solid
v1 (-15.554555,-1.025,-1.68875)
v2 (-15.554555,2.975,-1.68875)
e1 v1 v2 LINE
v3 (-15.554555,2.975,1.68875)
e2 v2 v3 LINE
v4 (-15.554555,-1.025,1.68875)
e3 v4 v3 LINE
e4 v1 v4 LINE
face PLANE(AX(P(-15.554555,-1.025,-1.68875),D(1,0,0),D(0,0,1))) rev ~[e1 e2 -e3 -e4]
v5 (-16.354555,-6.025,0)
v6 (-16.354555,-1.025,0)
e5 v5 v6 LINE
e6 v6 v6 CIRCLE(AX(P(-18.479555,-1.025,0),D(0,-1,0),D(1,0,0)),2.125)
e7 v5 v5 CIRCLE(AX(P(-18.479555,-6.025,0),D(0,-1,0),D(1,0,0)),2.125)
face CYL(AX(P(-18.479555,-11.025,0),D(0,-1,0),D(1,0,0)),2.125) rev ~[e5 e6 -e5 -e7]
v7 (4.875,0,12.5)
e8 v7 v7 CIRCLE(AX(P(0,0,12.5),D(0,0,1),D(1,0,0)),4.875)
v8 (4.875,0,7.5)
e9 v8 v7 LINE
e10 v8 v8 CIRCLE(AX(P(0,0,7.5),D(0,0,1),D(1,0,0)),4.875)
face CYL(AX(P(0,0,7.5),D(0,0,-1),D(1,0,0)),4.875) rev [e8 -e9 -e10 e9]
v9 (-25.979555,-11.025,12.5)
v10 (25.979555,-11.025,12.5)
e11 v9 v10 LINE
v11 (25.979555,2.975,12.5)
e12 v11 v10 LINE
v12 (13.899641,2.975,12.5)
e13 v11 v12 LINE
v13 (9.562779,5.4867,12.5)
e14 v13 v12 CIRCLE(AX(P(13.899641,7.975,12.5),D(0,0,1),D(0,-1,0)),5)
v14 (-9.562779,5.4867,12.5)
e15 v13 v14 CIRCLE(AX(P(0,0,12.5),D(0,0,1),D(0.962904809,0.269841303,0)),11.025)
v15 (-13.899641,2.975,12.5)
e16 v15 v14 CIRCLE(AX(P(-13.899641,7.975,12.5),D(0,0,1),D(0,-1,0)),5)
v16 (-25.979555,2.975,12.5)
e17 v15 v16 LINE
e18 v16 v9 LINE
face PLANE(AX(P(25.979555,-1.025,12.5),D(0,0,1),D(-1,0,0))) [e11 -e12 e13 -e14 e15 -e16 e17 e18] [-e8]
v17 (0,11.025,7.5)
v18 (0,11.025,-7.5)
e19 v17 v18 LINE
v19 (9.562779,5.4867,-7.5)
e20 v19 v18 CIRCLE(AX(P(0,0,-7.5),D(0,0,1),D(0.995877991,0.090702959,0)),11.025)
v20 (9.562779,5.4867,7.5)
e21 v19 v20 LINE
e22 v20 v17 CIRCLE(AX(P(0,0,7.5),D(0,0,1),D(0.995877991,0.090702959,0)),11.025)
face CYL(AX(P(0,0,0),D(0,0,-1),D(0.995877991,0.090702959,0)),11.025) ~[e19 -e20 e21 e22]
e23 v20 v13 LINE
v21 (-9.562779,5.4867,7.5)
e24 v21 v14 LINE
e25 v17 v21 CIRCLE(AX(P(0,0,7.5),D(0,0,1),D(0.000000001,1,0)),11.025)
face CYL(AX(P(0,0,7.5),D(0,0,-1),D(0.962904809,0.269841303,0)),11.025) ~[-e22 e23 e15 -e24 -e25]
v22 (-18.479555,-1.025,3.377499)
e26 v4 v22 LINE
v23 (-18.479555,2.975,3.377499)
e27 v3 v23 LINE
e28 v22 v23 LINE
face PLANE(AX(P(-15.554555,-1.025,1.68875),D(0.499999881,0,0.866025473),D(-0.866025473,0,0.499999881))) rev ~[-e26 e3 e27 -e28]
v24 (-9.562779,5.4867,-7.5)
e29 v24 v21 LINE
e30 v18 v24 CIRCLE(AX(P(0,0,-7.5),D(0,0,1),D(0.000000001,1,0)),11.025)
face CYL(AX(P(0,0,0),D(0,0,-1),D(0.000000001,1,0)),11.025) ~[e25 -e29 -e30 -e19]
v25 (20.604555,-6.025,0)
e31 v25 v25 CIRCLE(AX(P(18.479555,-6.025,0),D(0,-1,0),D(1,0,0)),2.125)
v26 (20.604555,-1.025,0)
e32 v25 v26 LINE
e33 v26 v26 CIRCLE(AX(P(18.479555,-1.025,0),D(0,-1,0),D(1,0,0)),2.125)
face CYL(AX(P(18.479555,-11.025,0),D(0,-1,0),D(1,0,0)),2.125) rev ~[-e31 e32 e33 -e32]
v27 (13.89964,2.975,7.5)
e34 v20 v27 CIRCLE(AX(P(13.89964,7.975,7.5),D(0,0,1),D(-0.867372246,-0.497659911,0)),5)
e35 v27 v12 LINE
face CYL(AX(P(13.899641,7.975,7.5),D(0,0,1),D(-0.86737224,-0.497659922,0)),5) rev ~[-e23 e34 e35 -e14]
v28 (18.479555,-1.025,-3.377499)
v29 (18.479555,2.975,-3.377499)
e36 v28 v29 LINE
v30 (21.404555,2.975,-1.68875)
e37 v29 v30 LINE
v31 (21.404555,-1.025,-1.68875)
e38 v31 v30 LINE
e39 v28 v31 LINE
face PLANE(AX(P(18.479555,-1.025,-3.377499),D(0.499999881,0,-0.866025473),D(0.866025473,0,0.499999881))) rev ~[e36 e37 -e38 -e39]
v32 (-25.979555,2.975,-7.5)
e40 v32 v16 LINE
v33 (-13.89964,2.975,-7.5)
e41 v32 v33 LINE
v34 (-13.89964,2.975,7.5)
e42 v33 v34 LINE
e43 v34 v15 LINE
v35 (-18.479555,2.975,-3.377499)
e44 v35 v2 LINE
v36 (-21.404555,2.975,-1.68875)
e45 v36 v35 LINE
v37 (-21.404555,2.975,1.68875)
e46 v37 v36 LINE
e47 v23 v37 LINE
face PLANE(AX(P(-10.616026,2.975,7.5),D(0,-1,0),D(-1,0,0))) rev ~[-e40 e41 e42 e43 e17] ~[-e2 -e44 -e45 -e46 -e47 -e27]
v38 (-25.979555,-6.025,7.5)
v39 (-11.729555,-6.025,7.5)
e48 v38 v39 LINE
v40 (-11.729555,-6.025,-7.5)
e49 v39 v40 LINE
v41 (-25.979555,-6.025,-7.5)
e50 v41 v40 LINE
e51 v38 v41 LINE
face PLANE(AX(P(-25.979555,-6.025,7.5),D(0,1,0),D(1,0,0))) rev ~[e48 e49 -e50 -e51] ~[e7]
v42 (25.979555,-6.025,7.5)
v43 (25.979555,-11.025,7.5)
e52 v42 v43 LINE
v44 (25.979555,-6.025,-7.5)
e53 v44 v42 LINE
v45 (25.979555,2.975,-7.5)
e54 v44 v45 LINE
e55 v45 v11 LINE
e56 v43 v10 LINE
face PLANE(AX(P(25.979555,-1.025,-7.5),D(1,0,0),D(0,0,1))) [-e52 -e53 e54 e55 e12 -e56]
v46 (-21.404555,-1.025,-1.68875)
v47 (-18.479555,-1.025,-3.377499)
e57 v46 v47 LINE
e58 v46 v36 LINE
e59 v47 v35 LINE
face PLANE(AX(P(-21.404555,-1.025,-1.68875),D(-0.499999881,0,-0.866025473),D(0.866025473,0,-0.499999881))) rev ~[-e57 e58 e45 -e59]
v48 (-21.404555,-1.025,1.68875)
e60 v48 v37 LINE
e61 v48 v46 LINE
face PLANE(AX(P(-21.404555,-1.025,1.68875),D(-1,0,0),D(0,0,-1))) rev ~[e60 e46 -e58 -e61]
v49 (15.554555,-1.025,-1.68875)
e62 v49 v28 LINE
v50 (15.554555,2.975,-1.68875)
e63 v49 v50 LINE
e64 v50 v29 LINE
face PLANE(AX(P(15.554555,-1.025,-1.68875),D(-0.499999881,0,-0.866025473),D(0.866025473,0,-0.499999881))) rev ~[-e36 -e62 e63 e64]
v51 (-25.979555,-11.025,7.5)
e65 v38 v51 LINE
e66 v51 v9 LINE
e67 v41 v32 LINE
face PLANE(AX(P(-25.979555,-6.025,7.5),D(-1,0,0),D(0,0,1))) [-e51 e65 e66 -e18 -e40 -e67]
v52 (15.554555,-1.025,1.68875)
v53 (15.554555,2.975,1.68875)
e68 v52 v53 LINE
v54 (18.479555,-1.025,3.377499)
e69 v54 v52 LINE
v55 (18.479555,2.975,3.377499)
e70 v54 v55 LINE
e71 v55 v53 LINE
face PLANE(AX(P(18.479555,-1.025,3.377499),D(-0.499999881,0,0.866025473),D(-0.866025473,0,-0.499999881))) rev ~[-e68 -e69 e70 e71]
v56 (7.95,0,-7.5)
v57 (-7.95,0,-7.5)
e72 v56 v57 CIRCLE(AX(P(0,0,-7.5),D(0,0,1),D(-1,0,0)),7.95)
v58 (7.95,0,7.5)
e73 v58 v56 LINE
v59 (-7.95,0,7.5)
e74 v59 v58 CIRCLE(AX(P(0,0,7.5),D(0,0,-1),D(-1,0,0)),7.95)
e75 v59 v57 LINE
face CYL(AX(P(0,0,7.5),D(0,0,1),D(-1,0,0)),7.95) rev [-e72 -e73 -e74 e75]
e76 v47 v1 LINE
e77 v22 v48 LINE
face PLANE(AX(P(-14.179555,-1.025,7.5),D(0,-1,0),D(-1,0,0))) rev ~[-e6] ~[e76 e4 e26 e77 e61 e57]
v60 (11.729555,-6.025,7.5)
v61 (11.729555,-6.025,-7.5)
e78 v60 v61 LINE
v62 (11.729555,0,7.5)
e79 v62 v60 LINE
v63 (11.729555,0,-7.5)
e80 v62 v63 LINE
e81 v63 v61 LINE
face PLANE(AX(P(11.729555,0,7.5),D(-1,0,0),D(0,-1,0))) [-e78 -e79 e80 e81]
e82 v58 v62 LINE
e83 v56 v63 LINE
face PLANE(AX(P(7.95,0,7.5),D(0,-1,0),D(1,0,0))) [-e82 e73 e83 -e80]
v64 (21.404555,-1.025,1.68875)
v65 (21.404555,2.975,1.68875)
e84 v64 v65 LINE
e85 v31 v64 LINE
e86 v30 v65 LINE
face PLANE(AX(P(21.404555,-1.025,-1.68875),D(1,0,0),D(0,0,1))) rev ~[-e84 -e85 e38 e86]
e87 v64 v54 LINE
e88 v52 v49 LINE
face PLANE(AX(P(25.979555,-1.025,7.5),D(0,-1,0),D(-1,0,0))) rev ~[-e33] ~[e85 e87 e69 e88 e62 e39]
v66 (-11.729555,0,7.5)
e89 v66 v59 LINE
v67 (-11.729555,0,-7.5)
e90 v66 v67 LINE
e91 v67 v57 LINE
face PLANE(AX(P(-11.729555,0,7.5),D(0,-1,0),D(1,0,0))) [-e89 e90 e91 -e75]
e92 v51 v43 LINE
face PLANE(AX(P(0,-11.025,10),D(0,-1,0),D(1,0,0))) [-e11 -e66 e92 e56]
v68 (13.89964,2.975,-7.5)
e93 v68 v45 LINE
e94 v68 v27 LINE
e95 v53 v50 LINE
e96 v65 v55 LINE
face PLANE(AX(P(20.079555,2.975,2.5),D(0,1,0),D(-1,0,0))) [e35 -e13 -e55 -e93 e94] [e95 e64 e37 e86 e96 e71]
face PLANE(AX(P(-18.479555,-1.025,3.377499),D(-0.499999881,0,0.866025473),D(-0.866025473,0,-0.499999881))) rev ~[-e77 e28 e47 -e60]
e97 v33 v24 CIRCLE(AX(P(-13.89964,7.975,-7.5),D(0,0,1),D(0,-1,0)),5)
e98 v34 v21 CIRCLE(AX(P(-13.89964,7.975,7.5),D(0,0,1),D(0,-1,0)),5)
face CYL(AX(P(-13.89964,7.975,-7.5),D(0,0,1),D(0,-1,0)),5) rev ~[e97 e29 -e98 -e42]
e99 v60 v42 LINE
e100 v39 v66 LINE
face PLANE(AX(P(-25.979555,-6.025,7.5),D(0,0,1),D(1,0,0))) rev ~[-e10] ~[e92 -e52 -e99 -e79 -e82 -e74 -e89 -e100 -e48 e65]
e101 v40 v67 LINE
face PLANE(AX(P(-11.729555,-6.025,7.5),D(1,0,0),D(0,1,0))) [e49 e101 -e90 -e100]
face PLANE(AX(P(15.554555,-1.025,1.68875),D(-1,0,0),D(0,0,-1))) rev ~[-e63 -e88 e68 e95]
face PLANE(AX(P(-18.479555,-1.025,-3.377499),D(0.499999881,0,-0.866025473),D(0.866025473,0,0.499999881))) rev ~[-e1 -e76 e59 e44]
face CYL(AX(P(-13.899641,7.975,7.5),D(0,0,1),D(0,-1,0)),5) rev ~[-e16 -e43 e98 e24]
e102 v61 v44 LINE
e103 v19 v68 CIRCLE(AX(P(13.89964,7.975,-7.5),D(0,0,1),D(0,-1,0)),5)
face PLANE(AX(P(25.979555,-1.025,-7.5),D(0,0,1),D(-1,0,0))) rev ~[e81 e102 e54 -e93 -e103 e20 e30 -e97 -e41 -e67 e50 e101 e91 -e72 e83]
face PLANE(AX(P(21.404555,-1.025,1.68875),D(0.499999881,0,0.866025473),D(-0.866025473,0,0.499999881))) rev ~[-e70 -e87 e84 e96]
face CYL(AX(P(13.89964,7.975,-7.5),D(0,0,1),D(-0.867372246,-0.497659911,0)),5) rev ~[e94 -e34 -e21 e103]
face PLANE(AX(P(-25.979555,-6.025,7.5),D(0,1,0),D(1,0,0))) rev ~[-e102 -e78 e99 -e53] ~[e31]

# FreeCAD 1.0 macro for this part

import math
import FreeCAD as App
import Part
import Sketcher

V = App.Vector
Q = App.Units.Quantity


def edges_at(feature, points):
    """Names of the edges that pass closest to the given points."""
    edges = feature.Shape.Edges
    near = lambda p: min(range(len(edges)), key=lambda i: edges[i].distToShape(Part.Vertex(*p))[0])
    return sorted({f"Edge{near(p) + 1}" for p in points})


def add_polygon(sketch, points):
    """Adds a closed chain of lines whose ends are joined by coincident constraints."""
    first, n = sketch.GeometryCount, len(points)
    for a, b in zip(points, points[1:] + points[:1]):
        sketch.addGeometry(Part.LineSegment(App.Vector(*a, 0), App.Vector(*b, 0)), False)
    for i in range(n):
        sketch.addConstraint(Sketcher.Constraint("Coincident", first + i, 2, first + (i + 1) % n, 1))

doc = App.newDocument("Part")
params = doc.addObject("Spreadsheet::Sheet", "Params")
for row, (alias, value) in enumerate([
    ("sketch1_diameter", "9.5 mm"),
    ("sketch1_width", "15 mm"),
    ("sketch1_height", "5 mm"),
    ("pad1_length", "15 mm"),
    ("sketch2_diameter", "4.25 mm"),
    ("pocket1_length", "25 mm"),
    ("sketch4_height", "4 mm"),
    ("sketch4_width", "3.2 mm"),
    ("pad2_length", "15 mm"),
    ("sketch5_diameter", "9.75 mm"),
    ("sketch5_height", "5 mm"),
    ("sketch5_height2", "4 mm"),
    ("sketch5_width", "11.8 mm"),
    ("pad3_length", "5 mm"),
    ("sketch6_height", "5 mm"),
    ("pad4_length", "5 mm"),
    ("sketch7_height", "20 mm"),
    ("sketch7_width", "11.8 mm"),
    ("pad5_length", "4 mm"),
    ("fillet_radius", "5 mm"),
    ("sketch8_radius", "7.95 mm"),
    ("pocket3_length", "25 mm"),
], start=1):
    params.set(f"A{row}", alias)
    params.set(f"B{row}", "=" + value)
    params.setAlias(f"B{row}", alias)

body = doc.addObject("PartDesign::Body", "Body")
body.AllowCompound = True

# Sketch on XY plane
sketch1 = body.newObject("Sketcher::SketchObject", "Sketch")
sketch1.AttachmentSupport = (doc.getObject("XY_Plane"), [""])
sketch1.MapMode = "FlatFace"
sketch1.addGeometry(Part.LineSegment(V(-11, -11, 0), V(11, -11, 0)), False)
sketch1.addGeometry(Part.LineSegment(V(11, -11, 0), V(11, -6, 0)), False)
sketch1.addGeometry(Part.LineSegment(V(11, -6, 0), V(26, -6, 0)), False)
sketch1.addGeometry(Part.LineSegment(V(26, -6, 0), V(26, -1, 0)), False)
sketch1.addGeometry(Part.LineSegment(V(26, -1, 0), V(11, -1, 0)), False)
sketch1.addGeometry(Part.LineSegment(V(11, -1, 0), V(11, 1, 0)), False)
sketch1.addGeometry(Part.ArcOfCircle(Part.Circle(V(0, 0, 0), V(0, 0, 1), 11), math.radians(5), math.radians(90)), False)
sketch1.addGeometry(Part.ArcOfCircle(Part.Circle(V(0, 0, 0), V(0, 0, 1), 11), math.radians(90), math.radians(175)), False)
sketch1.addGeometry(Part.LineSegment(V(-11, 1, 0), V(-11, -1, 0)), False)
sketch1.addGeometry(Part.LineSegment(V(-11, -1, 0), V(-26, -1, 0)), False)
sketch1.addGeometry(Part.LineSegment(V(-26, -1, 0), V(-26, -6, 0)), False)
sketch1.addGeometry(Part.LineSegment(V(-26, -6, 0), V(-11, -6, 0)), False)
sketch1.addGeometry(Part.LineSegment(V(-11, -6, 0), V(-11, -11, 0)), False)
sketch1.addGeometry(Part.Circle(V(0, 0, 0), V(0, 0, 1), 4.8), False)
sketch1.addConstraint(Sketcher.Constraint("Coincident", 0, 2, 1, 1))
sketch1.addConstraint(Sketcher.Constraint("Coincident", 1, 2, 2, 1))
sketch1.addConstraint(Sketcher.Constraint("Coincident", 2, 2, 3, 1))
sketch1.addConstraint(Sketcher.Constraint("Coincident", 3, 2, 4, 1))
sketch1.addConstraint(Sketcher.Constraint("Coincident", 4, 2, 5, 1))
sketch1.addConstraint(Sketcher.Constraint("Coincident", 5, 2, 6, 1))
sketch1.addConstraint(Sketcher.Constraint("Tangent", 6, 2, 7, 1))
sketch1.addConstraint(Sketcher.Constraint("Coincident", 7, 2, 8, 1))
sketch1.addConstraint(Sketcher.Constraint("Coincident", 8, 2, 9, 1))
sketch1.addConstraint(Sketcher.Constraint("Coincident", 9, 2, 10, 1))
sketch1.addConstraint(Sketcher.Constraint("Coincident", 10, 2, 11, 1))
sketch1.addConstraint(Sketcher.Constraint("Coincident", 11, 2, 12, 1))
sketch1.addConstraint(Sketcher.Constraint("Coincident", 12, 2, 0, 1))
sketch1.addConstraint(Sketcher.Constraint("Horizontal", 0))
sketch1.addConstraint(Sketcher.Constraint("Vertical", 1))
sketch1.addConstraint(Sketcher.Constraint("Horizontal", 2))
sketch1.addConstraint(Sketcher.Constraint("Vertical", 3))
sketch1.addConstraint(Sketcher.Constraint("Horizontal", 4))
sketch1.addConstraint(Sketcher.Constraint("Vertical", 5))
sketch1.addConstraint(Sketcher.Constraint("Vertical", 8))
sketch1.addConstraint(Sketcher.Constraint("Horizontal", 9))
sketch1.addConstraint(Sketcher.Constraint("Vertical", 10))
sketch1.addConstraint(Sketcher.Constraint("Horizontal", 11))
sketch1.addConstraint(Sketcher.Constraint("Vertical", 12))
sketch1.addConstraint(Sketcher.Constraint("Coincident", 6, 3, -1, 1))
sketch1.addConstraint(Sketcher.Constraint("Coincident", 13, 3, -1, 1))
sketch1.addConstraint(Sketcher.Constraint("Equal", 6, 7))
sketch1.addConstraint(Sketcher.Constraint("Symmetric", 4, 2, 8, 2, -2))
sketch1.addConstraint(Sketcher.Constraint("Symmetric", 2, 2, 10, 2, -2))
sketch1.addConstraint(Sketcher.Constraint("PointOnObject", 6, 2, -2))
sketch1.addConstraint(Sketcher.Constraint("Vertical", 1, 2, 4, 2))
sketch1.addConstraint(Sketcher.Constraint("Vertical", 8, 2, 11, 2))
sketch1.addConstraint(Sketcher.Constraint("Equal", 1, 3))
sketch1.addConstraint(Sketcher.Constraint("Diameter", 13, Q("9.5 mm")))
sketch1.addConstraint(Sketcher.Constraint("DistanceX", 2, 1, 2, 2, Q("15 mm")))
sketch1.addConstraint(Sketcher.Constraint("DistanceY", 1, 1, 1, 2, Q("5 mm")))
sketch1.addConstraint(Sketcher.Constraint("DistanceY", -1, 1, 5, 2, Q("1 mm")))
sketch1.addConstraint(Sketcher.Constraint("Radius", 6, Q("11.025 mm")))
sketch1.addConstraint(Sketcher.Constraint("DistanceY", 5, 1, 5, 2, Q("2.025 mm")))
sketch1.setExpression("Constraints[33]", "Params.sketch1_diameter")
sketch1.setExpression("Constraints[34]", "Params.sketch1_width")
sketch1.setExpression("Constraints[35]", "Params.sketch1_height")
pad1 = body.newObject("PartDesign::Pad", "Pad")
pad1.Profile = sketch1
pad1.setExpression("Length", "Params.pad1_length")
pad1.Midplane = True

# Sketch on XZ plane
sketch2 = body.newObject("Sketcher::SketchObject", "Sketch001")
sketch2.AttachmentSupport = (doc.getObject("XZ_Plane"), [""])
sketch2.MapMode = "FlatFace"
sketch2.AttachmentOffset = App.Placement(V(0, 0, 11.025), App.Rotation())
sketch2.addGeometry(Part.Circle(V(-18.5, 0, 0), V(0, 0, 1), 2.1), False)
sketch2.addGeometry(Part.Circle(V(18.5, 0, 0), V(0, 0, 1), 2.1), False)
sketch2.addConstraint(Sketcher.Constraint("Equal", 0, 1))
sketch2.addConstraint(Sketcher.Constraint("Symmetric", 0, 3, 1, 3, -1, 1))
sketch2.addConstraint(Sketcher.Constraint("PointOnObject", 0, 3, -1))
sketch2.addConstraint(Sketcher.Constraint("Diameter", 0, Q("4.25 mm")))
sketch2.addConstraint(Sketcher.Constraint("DistanceX", 0, 3, 1, 3, Q("36.95911 mm")))
sketch2.setExpression("Constraints[3]", "Params.sketch2_diameter")
pocket1 = body.newObject("PartDesign::Pocket", "Pocket")
pocket1.Profile = sketch2
pocket1.setExpression("Length", "Params.pocket1_length")

# Sketch on XY plane
sketch3 = body.newObject("Sketcher::SketchObject", "Sketch002")
sketch3.AttachmentSupport = (doc.getObject("XY_Plane"), [""])
sketch3.MapMode = "FlatFace"
sketch3.AttachmentOffset = App.Placement(V(0, 0, 7.5), App.Rotation())
sketch3.addGeometry(Part.LineSegment(V(11, 0, 0), V(7.8, 0, 0)), False)
sketch3.addGeometry(Part.ArcOfCircle(Part.Circle(V(0, 0, 0), V(0, 0, 1), 7.8), math.radians(0), math.radians(180)), False)
sketch3.addGeometry(Part.LineSegment(V(-7.8, 0, 0), V(-11, 0, 0)), False)
sketch3.addGeometry(Part.LineSegment(V(-11, 0, 0), V(-11, -11, 0)), False)
sketch3.addGeometry(Part.LineSegment(V(-11, -11, 0), V(11, -11, 0)), False)
sketch3.addGeometry(Part.LineSegment(V(11, -11, 0), V(11, 0, 0)), False)
sketch3.addConstraint(Sketcher.Constraint("Coincident", 0, 2, 1, 1))
sketch3.addConstraint(Sketcher.Constraint("Coincident", 1, 2, 2, 1))
sketch3.addConstraint(Sketcher.Constraint("Coincident", 2, 2, 3, 1))
sketch3.addConstraint(Sketcher.Constraint("Coincident", 3, 2, 4, 1))
sketch3.addConstraint(Sketcher.Constraint("Coincident", 4, 2, 5, 1))
sketch3.addConstraint(Sketcher.Constraint("Coincident", 5, 2, 0, 1))
sketch3.addConstraint(Sketcher.Constraint("Horizontal", 0))
sketch3.addConstraint(Sketcher.Constraint("Horizontal", 2))
sketch3.addConstraint(Sketcher.Constraint("Vertical", 3))
sketch3.addConstraint(Sketcher.Constraint("Horizontal", 4))
sketch3.addConstraint(Sketcher.Constraint("Vertical", 5))
sketch3.addConstraint(Sketcher.Constraint("Coincident", 1, 3, -1, 1))
sketch3.addConstraint(Sketcher.Constraint("Symmetric", 2, 2, 5, 2, -2))
sketch3.addConstraint(Sketcher.Constraint("Radius", 1, Q("7.825 mm")))
sketch3.addConstraint(Sketcher.Constraint("DistanceY", 3, 2, 3, 1, Q("11.0125 mm")))
sketch3.addConstraint(Sketcher.Constraint("DistanceY", 3, 2, -1, 1, Q("11.025 mm")))
sketch3.addConstraint(Sketcher.Constraint("DistanceX", 4, 1, 4, 2, Q("21.95911 mm")))
pocket2 = body.newObject("PartDesign::Pocket", "Pocket001")
pocket2.Profile = sketch3
pocket2.Type = "ThroughAll"

# Sketch on XY plane
sketch4 = body.newObject("Sketcher::SketchObject", "Sketch003")
sketch4.AttachmentSupport = (doc.getObject("XY_Plane"), [""])
sketch4.MapMode = "FlatFace"
sketch4.addGeometry(Part.LineSegment(V(-10.979555, -1.025, 0), V(-10.979555, 1, 0)), False)
sketch4.addGeometry(Part.ArcOfCircle(Part.Circle(V(-0.000028, 0.000007, 0), V(0, 0, 1), 11.024971), math.radians(164.345172), math.radians(174.795972)), False)
sketch4.addGeometry(Part.LineSegment(V(-10.616026, 2.975, 0), V(-14.179555, 2.975, 0)), False)
sketch4.addGeometry(Part.LineSegment(V(-14.179555, 2.975, 0), V(-14.179555, -1.025, 0)), False)
sketch4.addGeometry(Part.LineSegment(V(-14.179555, -1.025, 0), V(-10.979555, -1.025, 0)), False)
sketch4.addGeometry(Part.LineSegment(V(14.179555, 2.975, 0), V(10.616026, 2.975, 0)), False)
sketch4.addGeometry(Part.ArcOfCircle(Part.Circle(V(0.000028, 0.000007, 0), V(0, 0, 1), 11.024971), math.radians(5.204028), math.radians(15.654828)), False)
sketch4.addGeometry(Part.LineSegment(V(10.979555, 1, 0), V(10.979555, -1.025, 0)), False)
sketch4.addGeometry(Part.LineSegment(V(10.979555, -1.025, 0), V(14.179555, -1.025, 0)), False)
sketch4.addGeometry(Part.LineSegment(V(14.179555, -1.025, 0), V(14.179555, 2.975, 0)), False)
sketch4.addConstraint(Sketcher.Constraint("Coincident", 0, 2, 1, 2))
sketch4.addConstraint(Sketcher.Constraint("Coincident", 1, 1, 2, 1))
sketch4.addConstraint(Sketcher.Constraint("Coincident", 2, 2, 3, 1))
sketch4.addConstraint(Sketcher.Constraint("Coincident", 3, 2, 4, 1))
sketch4.addConstraint(Sketcher.Constraint("Coincident", 4, 2, 0, 1))
sketch4.addConstraint(Sketcher.Constraint("Coincident", 5, 2, 6, 2))
sketch4.addConstraint(Sketcher.Constraint("Coincident", 6, 1, 7, 1))
sketch4.addConstraint(Sketcher.Constraint("Coincident", 7, 2, 8, 1))
sketch4.addConstraint(Sketcher.Constraint("Coincident", 8, 2, 9, 1))
sketch4.addConstraint(Sketcher.Constraint("Coincident", 9, 2, 5, 1))
sketch4.addConstraint(Sketcher.Constraint("Vertical", 0))
sketch4.addConstraint(Sketcher.Constraint("Horizontal", 2))
sketch4.addConstraint(Sketcher.Constraint("Vertical", 3))
sketch4.addConstraint(Sketcher.Constraint("Horizontal", 4))
sketch4.addConstraint(Sketcher.Constraint("Horizontal", 5))
sketch4.addConstraint(Sketcher.Constraint("Vertical", 7))
sketch4.addConstraint(Sketcher.Constraint("Horizontal", 8))
sketch4.addConstraint(Sketcher.Constraint("Vertical", 9))
sketch4.addConstraint(Sketcher.Constraint("Equal", 1, 6))
sketch4.addConstraint(Sketcher.Constraint("Symmetric", 1, 3, 6, 3, -2))
sketch4.addConstraint(Sketcher.Constraint("Symmetric", 4, 2, 7, 2, -2))
sketch4.addConstraint(Sketcher.Constraint("Symmetric", 2, 2, 9, 2, -2))
sketch4.addConstraint(Sketcher.Constraint("DistanceY", 3, 2, 3, 1, Q("4 mm")))
sketch4.addConstraint(Sketcher.Constraint("DistanceX", 4, 1, 4, 2, Q("3.2 mm")))
sketch4.addConstraint(Sketcher.Constraint("DistanceY", -1, 1, 0, 2, Q("1 mm")))
sketch4.addConstraint(Sketcher.Constraint("DistanceY", 0, 1, 0, 2, Q("2.025 mm")))
sketch4.addConstraint(Sketcher.Constraint("Radius", 1, Q("11.024971 mm")))
sketch4.addConstraint(Sketcher.Constraint("DistanceX", 2, 2, 2, 1, Q("3.563529 mm")))
sketch4.addConstraint(Sketcher.Constraint("DistanceX", 1, 1, 5, 2, Q("21.232052 mm")))
sketch4.setExpression("Constraints[22]", "Params.sketch4_height")
sketch4.setExpression("Constraints[23]", "Params.sketch4_width")
pad2 = body.newObject("PartDesign::Pad", "Pad001")
pad2.Profile = sketch4
pad2.setExpression("Length", "Params.pad2_length")
pad2.Midplane = True

# Sketch on XY plane
sketch5 = body.newObject("Sketcher::SketchObject", "Sketch004")
sketch5.AttachmentSupport = (doc.getObject("XY_Plane"), [""])
sketch5.MapMode = "FlatFace"
sketch5.AttachmentOffset = App.Placement(V(0, 0, 7.5), App.Rotation())
sketch5.addGeometry(Part.LineSegment(V(-26, -6, 0), V(26, -6, 0)), False)
sketch5.addGeometry(Part.LineSegment(V(26, -6, 0), V(26, -1, 0)), False)
sketch5.addGeometry(Part.LineSegment(V(26, -1, 0), V(14.2, -1, 0)), False)
sketch5.addGeometry(Part.LineSegment(V(14.2, -1, 0), V(14.2, 3, 0)), False)
sketch5.addGeometry(Part.LineSegment(V(14.2, 3, 0), V(10.6, 3, 0)), False)
sketch5.addGeometry(Part.ArcOfCircle(Part.Circle(V(0, 0, 0), V(0, 0, 1), 11), math.radians(16), math.radians(164)), False)
sketch5.addGeometry(Part.LineSegment(V(-10.6, 3, 0), V(-14.2, 3, 0)), False)
sketch5.addGeometry(Part.LineSegment(V(-14.2, 3, 0), V(-14.2, -1, 0)), False)
sketch5.addGeometry(Part.LineSegment(V(-14.2, -1, 0), V(-26, -1, 0)), False)
sketch5.addGeometry(Part.LineSegment(V(-26, -1, 0), V(-26, -6, 0)), False)
sketch5.addGeometry(Part.Circle(V(0, 0, 0), V(0, 0, 1), 4.9), False)
sketch5.addConstraint(Sketcher.Constraint("Coincident", 0, 2, 1, 1))
sketch5.addConstraint(Sketcher.Constraint("Coincident", 1, 2, 2, 1))
sketch5.addConstraint(Sketcher.Constraint("Coincident", 2, 2, 3, 1))
sketch5.addConstraint(Sketcher.Constraint("Coincident", 3, 2, 4, 1))
sketch5.addConstraint(Sketcher.Constraint("Coincident", 4, 2, 5, 1))
sketch5.addConstraint(Sketcher.Constraint("Coincident", 5, 2, 6, 1))
sketch5.addConstraint(Sketcher.Constraint("Coincident", 6, 2, 7, 1))
sketch5.addConstraint(Sketcher.Constraint("Coincident", 7, 2, 8, 1))
sketch5.addConstraint(Sketcher.Constraint("Coincident", 8, 2, 9, 1))
sketch5.addConstraint(Sketcher.Constraint("Coincident", 9, 2, 0, 1))
sketch5.addConstraint(Sketcher.Constraint("Horizontal", 0))
sketch5.addConstraint(Sketcher.Constraint("Vertical", 1))
sketch5.addConstraint(Sketcher.Constraint("Horizontal", 2))
sketch5.addConstraint(Sketcher.Constraint("Vertical", 3))
sketch5.addConstraint(Sketcher.Constraint("Horizontal", 4))
sketch5.addConstraint(Sketcher.Constraint("Horizontal", 6))
sketch5.addConstraint(Sketcher.Constraint("Vertical", 7))
sketch5.addConstraint(Sketcher.Constraint("Horizontal", 8))
sketch5.addConstraint(Sketcher.Constraint("Vertical", 9))
sketch5.addConstraint(Sketcher.Constraint("Coincident", 5, 3, -1, 1))
sketch5.addConstraint(Sketcher.Constraint("Coincident", 10, 3, -1, 1))
sketch5.addConstraint(Sketcher.Constraint("Symmetric", 3, 2, 6, 2, -2))
sketch5.addConstraint(Sketcher.Constraint("Symmetric", 1, 2, 8, 2, -2))
sketch5.addConstraint(Sketcher.Constraint("Diameter", 10, Q("9.75 mm")))
sketch5.addConstraint(Sketcher.Constraint("DistanceY", 1, 1, 1, 2, Q("5 mm")))
sketch5.addConstraint(Sketcher.Constraint("DistanceY", 3, 1, 3, 2, Q("4 mm")))
sketch5.addConstraint(Sketcher.Constraint("DistanceX", 2, 2, 2, 1, Q("11.8 mm")))
sketch5.addConstraint(Sketcher.Constraint("Radius", 5, Q("11.025 mm")))
sketch5.addConstraint(Sketcher.Constraint("DistanceY", 0, 2, -1, 1, Q("6.025 mm")))
sketch5.addConstraint(Sketcher.Constraint("DistanceX", 0, 1, 0, 2, Q("51.95911 mm")))
sketch5.setExpression("Constraints[23]", "Params.sketch5_diameter")
sketch5.setExpression("Constraints[24]", "Params.sketch5_height")
sketch5.setExpression("Constraints[25]", "Params.sketch5_height2")
sketch5.setExpression("Constraints[26]", "Params.sketch5_width")
pad3 = body.newObject("PartDesign::Pad", "Pad002")
pad3.Profile = sketch5
pad3.setExpression("Length", "Params.pad3_length")

# Sketch on XZ plane
sketch6 = body.newObject("Sketcher::SketchObject", "Sketch005")
sketch6.AttachmentSupport = (doc.getObject("XZ_Plane"), [""])
sketch6.MapMode = "FlatFace"
sketch6.AttachmentOffset = App.Placement(V(0, 0, 6.025), App.Rotation())
add_polygon(sketch6, [(-26, 12), (-26, 8), (26, 8), (26, 12)])  # lines 0-3
sketch6.addConstraint(Sketcher.Constraint("Vertical", 0))
sketch6.addConstraint(Sketcher.Constraint("Horizontal", 1))
sketch6.addConstraint(Sketcher.Constraint("Vertical", 2))
sketch6.addConstraint(Sketcher.Constraint("Horizontal", 3))
sketch6.addConstraint(Sketcher.Constraint("DistanceY", 0, 2, 0, 1, Q("5 mm")))
sketch6.addConstraint(Sketcher.Constraint("DistanceY", -1, 1, 0, 2, Q("7.5 mm")))
sketch6.addConstraint(Sketcher.Constraint("DistanceX", 1, 1, 1, 2, Q("51.95911 mm")))
sketch6.addConstraint(Sketcher.Constraint("DistanceX", 0, 2, -1, 1, Q("25.979555 mm")))
sketch6.setExpression("Constraints[8]", "Params.sketch6_height")
pad4 = body.newObject("PartDesign::Pad", "Pad003")
pad4.Profile = sketch6
pad4.setExpression("Length", "Params.pad4_length")

# Sketch on XZ plane
sketch7 = body.newObject("Sketcher::SketchObject", "Sketch006")
sketch7.AttachmentSupport = (doc.getObject("XZ_Plane"), [""])
sketch7.MapMode = "FlatFace"
sketch7.AttachmentOffset = App.Placement(V(0, 0, 1.025), App.Rotation())
add_polygon(sketch7, [(26, 12.5), (26, -7.5), (14.2, -7.5), (14.2, 12.5)])  # lines 0-3
add_polygon(sketch7, [(21.4, 1.7), (18.5, 3.4), (15.6, 1.7), (15.6, -1.7), (18.5, -3.4), (21.4, -1.7)])  # lines 4-9
add_polygon(sketch7, [(-14.2, 12.5), (-14.2, -7.5), (-26, -7.5), (-26, 12.5)])  # lines 10-13
add_polygon(sketch7, [(-15.6, -1.7), (-15.6, 1.7), (-18.5, 3.4), (-21.4, 1.7), (-21.4, -1.7), (-18.5, -3.4)])  # lines 14-19
sketch7.addConstraint(Sketcher.Constraint("Vertical", 0))
sketch7.addConstraint(Sketcher.Constraint("Horizontal", 1))
sketch7.addConstraint(Sketcher.Constraint("Vertical", 2))
sketch7.addConstraint(Sketcher.Constraint("Horizontal", 3))
sketch7.addConstraint(Sketcher.Constraint("Vertical", 6))
sketch7.addConstraint(Sketcher.Constraint("Vertical", 9))
sketch7.addConstraint(Sketcher.Constraint("Vertical", 10))
sketch7.addConstraint(Sketcher.Constraint("Horizontal", 11))
sketch7.addConstraint(Sketcher.Constraint("Vertical", 12))
sketch7.addConstraint(Sketcher.Constraint("Horizontal", 13))
sketch7.addConstraint(Sketcher.Constraint("Vertical", 14))
sketch7.addConstraint(Sketcher.Constraint("Vertical", 17))
sketch7.addConstraint(Sketcher.Constraint("Symmetric", 6, 2, 14, 2, -1, 1))
sketch7.addConstraint(Sketcher.Constraint("Symmetric", 7, 2, 15, 2, -1, 1))
sketch7.addConstraint(Sketcher.Constraint("Symmetric", 8, 2, 16, 2, -1, 1))
sketch7.addConstraint(Sketcher.Constraint("Symmetric", 4, 2, 18, 2, -1, 1))
sketch7.addConstraint(Sketcher.Constraint("Symmetric", 1, 2, 10, 2, -2))
sketch7.addConstraint(Sketcher.Constraint("Symmetric", 3, 2, 12, 2, -2))
sketch7.addConstraint(Sketcher.Constraint("Symmetric", 4, 2, 15, 2, -2))
sketch7.addConstraint(Sketcher.Constraint("Parallel", 4, 7))
sketch7.addConstraint(Sketcher.Constraint("Parallel", 5, 8))
sketch7.addConstraint(Sketcher.Constraint("Parallel", 15, 18))
sketch7.addConstraint(Sketcher.Constraint("Parallel", 16, 19))
sketch7.addConstraint(Sketcher.Constraint("Horizontal", 6, 2, 8, 2))
sketch7.addConstraint(Sketcher.Constraint("Horizontal", 5, 2, 9, 2))
sketch7.addConstraint(Sketcher.Constraint("DistanceY", 0, 2, 0, 1, Q("20 mm")))
sketch7.addConstraint(Sketcher.Constraint("Angle", 4, Q("150.000008 deg")))
sketch7.addConstraint(Sketcher.Constraint("DistanceX", 1, 2, 1, 1, Q("11.8 mm")))
sketch7.addConstraint(Sketcher.Constraint("DistanceY", 0, 2, -1, 1, Q("7.5 mm")))
sketch7.addConstraint(Sketcher.Constraint("DistanceX", 2, 2, 4, 2, Q("4.3 mm")))
sketch7.addConstraint(Sketcher.Constraint("DistanceX", 6, 2, 8, 2, Q("5.85 mm")))
sketch7.addConstraint(Sketcher.Constraint("DistanceY", 6, 2, 6, 1, Q("3.3775 mm")))
sketch7.addConstraint(Sketcher.Constraint("DistanceX", 10, 2, 1, 2, Q("28.35911 mm")))
sketch7.setExpression("Constraints[45]", "Params.sketch7_height")
sketch7.setExpression("Constraints[47]", "Params.sketch7_width")
pad5 = body.newObject("PartDesign::Pad", "Pad004")
pad5.Profile = sketch7
pad5.setExpression("Length", "Params.pad5_length")
pad5.Reversed = True
doc.recompute()

fillet = body.newObject("PartDesign::Fillet", "Fillet")
fillet.Base = (pad5, edges_at(pad5, [
    (0, 11.025, 0),
    (10.616, 2.975, 10),
    (0, 11.025, 0),
    (-10.616, 2.975, 10),
]))
fillet.setExpression("Radius", "Params.fillet_radius")

# Sketch on XY plane
sketch8 = body.newObject("Sketcher::SketchObject", "Sketch007")
sketch8.AttachmentSupport = (doc.getObject("XY_Plane"), [""])
sketch8.MapMode = "FlatFace"
sketch8.AttachmentOffset = App.Placement(V(0, 0, 7.5), App.Rotation())
sketch8.addGeometry(Part.LineSegment(V(11.7, -6, 0), V(-11.7, -6, 0)), False)
sketch8.addGeometry(Part.LineSegment(V(-11.7, -6, 0), V(-11.7, 0, 0)), False)
sketch8.addGeometry(Part.LineSegment(V(-11.7, 0, 0), V(-8, 0, 0)), False)
sketch8.addGeometry(Part.ArcOfCircle(Part.Circle(V(0, 0, 0), V(0, 0, 1), 8), math.radians(0), math.radians(180)), False)
sketch8.addGeometry(Part.LineSegment(V(8, 0, 0), V(11.7, 0, 0)), False)
sketch8.addGeometry(Part.LineSegment(V(11.7, 0, 0), V(11.7, -6, 0)), False)
sketch8.addConstraint(Sketcher.Constraint("Coincident", 0, 2, 1, 1))
sketch8.addConstraint(Sketcher.Constraint("Coincident", 1, 2, 2, 1))
sketch8.addConstraint(Sketcher.Constraint("Coincident", 2, 2, 3, 2))
sketch8.addConstraint(Sketcher.Constraint("Coincident", 3, 1, 4, 1))
sketch8.addConstraint(Sketcher.Constraint("Coincident", 4, 2, 5, 1))
sketch8.addConstraint(Sketcher.Constraint("Coincident", 5, 2, 0, 1))
sketch8.addConstraint(Sketcher.Constraint("Horizontal", 0))
sketch8.addConstraint(Sketcher.Constraint("Vertical", 1))
sketch8.addConstraint(Sketcher.Constraint("Horizontal", 2))
sketch8.addConstraint(Sketcher.Constraint("Horizontal", 4))
sketch8.addConstraint(Sketcher.Constraint("Vertical", 5))
sketch8.addConstraint(Sketcher.Constraint("Coincident", 3, 3, -1, 1))
sketch8.addConstraint(Sketcher.Constraint("Symmetric", 1, 2, 4, 2, -1, 1))
sketch8.addConstraint(Sketcher.Constraint("PointOnObject", 1, 2, -1))
sketch8.addConstraint(Sketcher.Constraint("Radius", 3, Q("7.95 mm")))
sketch8.addConstraint(Sketcher.Constraint("DistanceY", 1, 1, 1, 2, Q("6.025 mm")))
sketch8.addConstraint(Sketcher.Constraint("DistanceX", 0, 2, 0, 1, Q("23.45911 mm")))
sketch8.setExpression("Constraints[14]", "Params.sketch8_radius")
pocket3 = body.newObject("PartDesign::Pocket", "Pocket002")
pocket3.Profile = sketch8
pocket3.setExpression("Length", "Params.pocket3_length")

doc.recompute()
